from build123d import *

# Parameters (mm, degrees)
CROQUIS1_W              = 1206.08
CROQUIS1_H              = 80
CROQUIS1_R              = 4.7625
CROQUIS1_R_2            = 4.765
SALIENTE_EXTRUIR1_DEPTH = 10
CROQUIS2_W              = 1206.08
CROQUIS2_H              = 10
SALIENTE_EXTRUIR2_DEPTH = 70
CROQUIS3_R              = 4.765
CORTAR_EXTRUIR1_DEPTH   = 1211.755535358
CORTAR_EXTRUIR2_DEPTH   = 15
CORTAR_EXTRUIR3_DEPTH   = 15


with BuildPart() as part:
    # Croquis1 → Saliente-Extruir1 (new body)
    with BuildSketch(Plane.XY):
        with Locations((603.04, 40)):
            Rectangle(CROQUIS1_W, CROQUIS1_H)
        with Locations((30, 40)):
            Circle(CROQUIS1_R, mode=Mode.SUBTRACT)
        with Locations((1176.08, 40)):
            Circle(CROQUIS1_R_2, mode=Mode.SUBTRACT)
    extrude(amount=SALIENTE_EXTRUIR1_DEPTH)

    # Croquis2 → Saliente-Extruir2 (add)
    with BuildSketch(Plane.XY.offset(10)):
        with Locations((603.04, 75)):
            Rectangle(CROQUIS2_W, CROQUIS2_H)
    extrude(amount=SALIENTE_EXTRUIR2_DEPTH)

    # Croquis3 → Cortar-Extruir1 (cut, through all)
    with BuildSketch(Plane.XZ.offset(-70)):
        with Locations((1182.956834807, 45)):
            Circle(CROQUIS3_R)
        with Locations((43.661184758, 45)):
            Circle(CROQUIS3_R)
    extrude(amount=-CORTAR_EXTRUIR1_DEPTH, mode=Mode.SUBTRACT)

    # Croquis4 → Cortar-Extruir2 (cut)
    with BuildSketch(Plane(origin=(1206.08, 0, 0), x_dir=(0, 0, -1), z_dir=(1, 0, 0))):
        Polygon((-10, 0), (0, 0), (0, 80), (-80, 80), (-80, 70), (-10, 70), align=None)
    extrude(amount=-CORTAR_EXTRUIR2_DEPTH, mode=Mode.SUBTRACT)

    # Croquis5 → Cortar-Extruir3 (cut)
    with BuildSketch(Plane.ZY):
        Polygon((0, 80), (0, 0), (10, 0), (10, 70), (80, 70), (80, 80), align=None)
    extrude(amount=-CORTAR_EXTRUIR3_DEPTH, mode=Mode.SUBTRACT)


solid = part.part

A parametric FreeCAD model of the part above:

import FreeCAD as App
import Part
import Sketcher

V = App.Vector
Q = App.Units.Quantity

doc = App.newDocument("Part")
params = doc.addObject("Spreadsheet::Sheet", "Params")
for row, (alias, value) in enumerate([
    ("sketch1_diameter", "9.53 mm"),
    ("sketch1_height", "80 mm"),
    ("sketch1_width", "1206.08 mm"),
    ("pad1_length", "10 mm"),
    ("sketch2_height", "10 mm"),
    ("sketch2_width", "1206.08 mm"),
    ("pad2_length", "70 mm"),
    ("sketch3_diameter", "9.53 mm"),
    ("sketch4_width", "80 mm"),
    ("sketch4_width2", "10 mm"),
    ("pocket2_length", "15 mm"),
    ("sketch5_width", "80 mm"),
    ("sketch5_width2", "70 mm"),
    ("pocket3_length", "15 mm"),
], start=1):
    params.set(f"A{row}", alias)
    params.set(f"B{row}", "=" + value)
    params.setAlias(f"B{row}", alias)

body = doc.addObject("PartDesign::Body", "Body")

# Sketch on XY plane
sketch1 = body.newObject("Sketcher::SketchObject", "Sketch")
sketch1.AttachmentSupport = (doc.getObject("XY_Plane"), [""])
sketch1.MapMode = "FlatFace"
sketch1.addGeometry(Part.LineSegment(V(0, 80, 0), V(0, 0, 0)), False)
sketch1.addGeometry(Part.LineSegment(V(0, 0, 0), V(1206.1, 0, 0)), False)
sketch1.addGeometry(Part.LineSegment(V(1206.1, 0, 0), V(1206.1, 80, 0)), False)
sketch1.addGeometry(Part.LineSegment(V(1206.1, 80, 0), V(0, 80, 0)), False)
sketch1.addGeometry(Part.Circle(V(30, 40, 0), V(0, 0, 1), 4.8), False)
sketch1.addGeometry(Part.Circle(V(1176.1, 40, 0), V(0, 0, 1), 4.8), False)
sketch1.addConstraint(Sketcher.Constraint("Coincident", 0, 2, 1, 1))
sketch1.addConstraint(Sketcher.Constraint("Coincident", 1, 2, 2, 1))
sketch1.addConstraint(Sketcher.Constraint("Coincident", 2, 2, 3, 1))
sketch1.addConstraint(Sketcher.Constraint("Coincident", 3, 2, 0, 1))
sketch1.addConstraint(Sketcher.Constraint("Vertical", 0))
sketch1.addConstraint(Sketcher.Constraint("Horizontal", 1))
sketch1.addConstraint(Sketcher.Constraint("Vertical", 2))
sketch1.addConstraint(Sketcher.Constraint("Horizontal", 3))
sketch1.addConstraint(Sketcher.Constraint("Coincident", 0, 2, -1, 1))
sketch1.addConstraint(Sketcher.Constraint("Horizontal", 4, 3, 5, 3))
sketch1.addConstraint(Sketcher.Constraint("Diameter", 5, Q("9.53 mm")))
sketch1.addConstraint(Sketcher.Constraint("DistanceY", 0, 2, 0, 1, Q("80 mm")))
sketch1.addConstraint(Sketcher.Constraint("Diameter", 4, Q("9.525 mm")))
sketch1.addConstraint(Sketcher.Constraint("DistanceX", -1, 1, 4, 3, Q("30 mm")))
sketch1.addConstraint(Sketcher.Constraint("DistanceY", -1, 1, 4, 3, Q("40 mm")))
sketch1.addConstraint(Sketcher.Constraint("DistanceX", 5, 3, 1, 2, Q("30 mm")))
sketch1.addConstraint(Sketcher.Constraint("DistanceX", 1, 1, 1, 2, Q("1206.08 mm")))
sketch1.setExpression("Constraints[10]", "Params.sketch1_diameter")
sketch1.setExpression("Constraints[11]", "Params.sketch1_height")
sketch1.setExpression("Constraints[16]", "Params.sketch1_width")
pad1 = body.newObject("PartDesign::Pad", "Pad")
pad1.Profile = sketch1
pad1.setExpression("Length", "Params.pad1_length")

# Sketch on XY plane
sketch2 = body.newObject("Sketcher::SketchObject", "Sketch001")
sketch2.AttachmentSupport = (doc.getObject("XY_Plane"), [""])
sketch2.MapMode = "FlatFace"
sketch2.AttachmentOffset = App.Placement(V(0, 0, 10), App.Rotation())
sketch2.addGeometry(Part.LineSegment(V(0, 80, 0), V(0, 70, 0)), False)
sketch2.addGeometry(Part.LineSegment(V(0, 70, 0), V(1206, 70, 0)), False)
sketch2.addGeometry(Part.LineSegment(V(1206, 70, 0), V(1206, 80, 0)), False)
sketch2.addGeometry(Part.LineSegment(V(1206, 80, 0), V(0, 80, 0)), False)
sketch2.addConstraint(Sketcher.Constraint("Coincident", 0, 2, 1, 1))
sketch2.addConstraint(Sketcher.Constraint("Coincident", 1, 2, 2, 1))
sketch2.addConstraint(Sketcher.Constraint("Coincident", 2, 2, 3, 1))
sketch2.addConstraint(Sketcher.Constraint("Coincident", 3, 2, 0, 1))
sketch2.addConstraint(Sketcher.Constraint("Vertical", 0))
sketch2.addConstraint(Sketcher.Constraint("Horizontal", 1))
sketch2.addConstraint(Sketcher.Constraint("Vertical", 2))
sketch2.addConstraint(Sketcher.Constraint("Horizontal", 3))
sketch2.addConstraint(Sketcher.Constraint("PointOnObject", 0, 2, -2))
sketch2.addConstraint(Sketcher.Constraint("DistanceY", 0, 2, 0, 1, Q("10 mm")))
sketch2.addConstraint(Sketcher.Constraint("DistanceY", -1, 1, 0, 2, Q("70 mm")))
sketch2.addConstraint(Sketcher.Constraint("DistanceX", 1, 1, 1, 2, Q("1206.08 mm")))
sketch2.setExpression("Constraints[9]", "Params.sketch2_height")
sketch2.setExpression("Constraints[11]", "Params.sketch2_width")
pad2 = body.newObject("PartDesign::Pad", "Pad001")
pad2.Profile = sketch2
pad2.setExpression("Length", "Params.pad2_length")

# Sketch on XZ plane
sketch3 = body.newObject("Sketcher::SketchObject", "Sketch002")
sketch3.AttachmentSupport = (doc.getObject("XZ_Plane"), [""])
sketch3.MapMode = "FlatFace"
sketch3.AttachmentOffset = App.Placement(V(0, 0, -70), App.Rotation())
sketch3.addGeometry(Part.Circle(V(1183, 45, 0), V(0, 0, 1), 4.8), False)
sketch3.addGeometry(Part.Circle(V(43.7, 45, 0), V(0, 0, 1), 4.8), False)
sketch3.addConstraint(Sketcher.Constraint("Equal", 0, 1))
sketch3.addConstraint(Sketcher.Constraint("Horizontal", 0, 3, 1, 3))
sketch3.addConstraint(Sketcher.Constraint("Diameter", 0, Q("9.53 mm")))
sketch3.addConstraint(Sketcher.Constraint("DistanceY", -1, 1, 0, 3, Q("45 mm")))
sketch3.addConstraint(Sketcher.Constraint("DistanceX", 1, 3, 0, 3, Q("1139.29565 mm")))
sketch3.addConstraint(Sketcher.Constraint("DistanceX", -1, 1, 0, 3, Q("1182.956835 mm")))
sketch3.setExpression("Constraints[2]", "Params.sketch3_diameter")
pocket1 = body.newObject("PartDesign::Pocket", "Pocket")
pocket1.Profile = sketch3
pocket1.Type = "ThroughAll"

# Sketch on YZ plane
sketch4 = body.newObject("Sketcher::SketchObject", "Sketch003")
sketch4.AttachmentSupport = (doc.getObject("YZ_Plane"), [""])
sketch4.MapMode = "FlatFace"
sketch4.AttachmentOffset = App.Placement(V(0, 0, 1206.08), App.Rotation())
sketch4.addGeometry(Part.LineSegment(V(0, 10, 0), V(0, 0, 0)), False)
sketch4.addGeometry(Part.LineSegment(V(0, 0, 0), V(80, 0, 0)), False)
sketch4.addGeometry(Part.LineSegment(V(80, 0, 0), V(80, 80, 0)), False)
sketch4.addGeometry(Part.LineSegment(V(80, 80, 0), V(70, 80, 0)), False)
sketch4.addGeometry(Part.LineSegment(V(70, 80, 0), V(70, 10, 0)), False)
sketch4.addGeometry(Part.LineSegment(V(70, 10, 0), V(0, 10, 0)), False)
sketch4.addConstraint(Sketcher.Constraint("Coincident", 0, 2, 1, 1))
sketch4.addConstraint(Sketcher.Constraint("Coincident", 1, 2, 2, 1))
sketch4.addConstraint(Sketcher.Constraint("Coincident", 2, 2, 3, 1))
sketch4.addConstraint(Sketcher.Constraint("Coincident", 3, 2, 4, 1))
sketch4.addConstraint(Sketcher.Constraint("Coincident", 4, 2, 5, 1))
sketch4.addConstraint(Sketcher.Constraint("Coincident", 5, 2, 0, 1))
sketch4.addConstraint(Sketcher.Constraint("Vertical", 0))
sketch4.addConstraint(Sketcher.Constraint("Horizontal", 1))
sketch4.addConstraint(Sketcher.Constraint("Vertical", 2))
sketch4.addConstraint(Sketcher.Constraint("Horizontal", 3))
sketch4.addConstraint(Sketcher.Constraint("Vertical", 4))
sketch4.addConstraint(Sketcher.Constraint("Horizontal", 5))
sketch4.addConstraint(Sketcher.Constraint("Coincident", 0, 2, -1, 1))
sketch4.addConstraint(Sketcher.Constraint("Equal", 3, 0))
sketch4.addConstraint(Sketcher.Constraint("Equal", 1, 2))
sketch4.addConstraint(Sketcher.Constraint("DistanceX", 1, 1, 1, 2, Q("80 mm")))
sketch4.addConstraint(Sketcher.Constraint("DistanceX", 3, 2, 3, 1, Q("10 mm")))
sketch4.setExpression("Constraints[15]", "Params.sketch4_width")
sketch4.setExpression("Constraints[16]", "Params.sketch4_width2")
pocket2 = body.newObject("PartDesign::Pocket", "Pocket001")
pocket2.Profile = sketch4
pocket2.setExpression("Length", "Params.pocket2_length")

# Sketch on YZ plane
sketch5 = body.newObject("Sketcher::SketchObject", "Sketch004")
sketch5.AttachmentSupport = (doc.getObject("YZ_Plane"), [""])
sketch5.MapMode = "FlatFace"
sketch5.addGeometry(Part.LineSegment(V(80, 0, 0), V(0, 0, 0)), False)
sketch5.addGeometry(Part.LineSegment(V(0, 0, 0), V(0, 10, 0)), False)
sketch5.addGeometry(Part.LineSegment(V(0, 10, 0), V(70, 10, 0)), False)
sketch5.addGeometry(Part.LineSegment(V(70, 10, 0), V(70, 80, 0)), False)
sketch5.addGeometry(Part.LineSegment(V(70, 80, 0), V(80, 80, 0)), False)
sketch5.addGeometry(Part.LineSegment(V(80, 80, 0), V(80, 0, 0)), False)
sketch5.addConstraint(Sketcher.Constraint("Coincident", 0, 2, 1, 1))
sketch5.addConstraint(Sketcher.Constraint("Coincident", 1, 2, 2, 1))
sketch5.addConstraint(Sketcher.Constraint("Coincident", 2, 2, 3, 1))
sketch5.addConstraint(Sketcher.Constraint("Coincident", 3, 2, 4, 1))
sketch5.addConstraint(Sketcher.Constraint("Coincident", 4, 2, 5, 1))
sketch5.addConstraint(Sketcher.Constraint("Coincident", 5, 2, 0, 1))
sketch5.addConstraint(Sketcher.Constraint("Horizontal", 0))
sketch5.addConstraint(Sketcher.Constraint("Vertical", 1))
sketch5.addConstraint(Sketcher.Constraint("Horizontal", 2))
sketch5.addConstraint(Sketcher.Constraint("Vertical", 3))
sketch5.addConstraint(Sketcher.Constraint("Horizontal", 4))
sketch5.addConstraint(Sketcher.Constraint("Vertical", 5))
sketch5.addConstraint(Sketcher.Constraint("Coincident", 0, 2, -1, 1))
sketch5.addConstraint(Sketcher.Constraint("Equal", 4, 1))
sketch5.addConstraint(Sketcher.Constraint("Equal", 2, 3))
sketch5.addConstraint(Sketcher.Constraint("DistanceX", 0, 2, 0, 1, Q("80 mm")))
sketch5.addConstraint(Sketcher.Constraint("DistanceX", 2, 1, 2, 2, Q("70 mm")))
sketch5.setExpression("Constraints[15]", "Params.sketch5_width")
sketch5.setExpression("Constraints[16]", "Params.sketch5_width2")
pocket3 = body.newObject("PartDesign::Pocket", "Pocket002")
pocket3.Profile = sketch5
pocket3.setExpression("Length", "Params.pocket3_length")
pocket3.Reversed = True

doc.recompute()
